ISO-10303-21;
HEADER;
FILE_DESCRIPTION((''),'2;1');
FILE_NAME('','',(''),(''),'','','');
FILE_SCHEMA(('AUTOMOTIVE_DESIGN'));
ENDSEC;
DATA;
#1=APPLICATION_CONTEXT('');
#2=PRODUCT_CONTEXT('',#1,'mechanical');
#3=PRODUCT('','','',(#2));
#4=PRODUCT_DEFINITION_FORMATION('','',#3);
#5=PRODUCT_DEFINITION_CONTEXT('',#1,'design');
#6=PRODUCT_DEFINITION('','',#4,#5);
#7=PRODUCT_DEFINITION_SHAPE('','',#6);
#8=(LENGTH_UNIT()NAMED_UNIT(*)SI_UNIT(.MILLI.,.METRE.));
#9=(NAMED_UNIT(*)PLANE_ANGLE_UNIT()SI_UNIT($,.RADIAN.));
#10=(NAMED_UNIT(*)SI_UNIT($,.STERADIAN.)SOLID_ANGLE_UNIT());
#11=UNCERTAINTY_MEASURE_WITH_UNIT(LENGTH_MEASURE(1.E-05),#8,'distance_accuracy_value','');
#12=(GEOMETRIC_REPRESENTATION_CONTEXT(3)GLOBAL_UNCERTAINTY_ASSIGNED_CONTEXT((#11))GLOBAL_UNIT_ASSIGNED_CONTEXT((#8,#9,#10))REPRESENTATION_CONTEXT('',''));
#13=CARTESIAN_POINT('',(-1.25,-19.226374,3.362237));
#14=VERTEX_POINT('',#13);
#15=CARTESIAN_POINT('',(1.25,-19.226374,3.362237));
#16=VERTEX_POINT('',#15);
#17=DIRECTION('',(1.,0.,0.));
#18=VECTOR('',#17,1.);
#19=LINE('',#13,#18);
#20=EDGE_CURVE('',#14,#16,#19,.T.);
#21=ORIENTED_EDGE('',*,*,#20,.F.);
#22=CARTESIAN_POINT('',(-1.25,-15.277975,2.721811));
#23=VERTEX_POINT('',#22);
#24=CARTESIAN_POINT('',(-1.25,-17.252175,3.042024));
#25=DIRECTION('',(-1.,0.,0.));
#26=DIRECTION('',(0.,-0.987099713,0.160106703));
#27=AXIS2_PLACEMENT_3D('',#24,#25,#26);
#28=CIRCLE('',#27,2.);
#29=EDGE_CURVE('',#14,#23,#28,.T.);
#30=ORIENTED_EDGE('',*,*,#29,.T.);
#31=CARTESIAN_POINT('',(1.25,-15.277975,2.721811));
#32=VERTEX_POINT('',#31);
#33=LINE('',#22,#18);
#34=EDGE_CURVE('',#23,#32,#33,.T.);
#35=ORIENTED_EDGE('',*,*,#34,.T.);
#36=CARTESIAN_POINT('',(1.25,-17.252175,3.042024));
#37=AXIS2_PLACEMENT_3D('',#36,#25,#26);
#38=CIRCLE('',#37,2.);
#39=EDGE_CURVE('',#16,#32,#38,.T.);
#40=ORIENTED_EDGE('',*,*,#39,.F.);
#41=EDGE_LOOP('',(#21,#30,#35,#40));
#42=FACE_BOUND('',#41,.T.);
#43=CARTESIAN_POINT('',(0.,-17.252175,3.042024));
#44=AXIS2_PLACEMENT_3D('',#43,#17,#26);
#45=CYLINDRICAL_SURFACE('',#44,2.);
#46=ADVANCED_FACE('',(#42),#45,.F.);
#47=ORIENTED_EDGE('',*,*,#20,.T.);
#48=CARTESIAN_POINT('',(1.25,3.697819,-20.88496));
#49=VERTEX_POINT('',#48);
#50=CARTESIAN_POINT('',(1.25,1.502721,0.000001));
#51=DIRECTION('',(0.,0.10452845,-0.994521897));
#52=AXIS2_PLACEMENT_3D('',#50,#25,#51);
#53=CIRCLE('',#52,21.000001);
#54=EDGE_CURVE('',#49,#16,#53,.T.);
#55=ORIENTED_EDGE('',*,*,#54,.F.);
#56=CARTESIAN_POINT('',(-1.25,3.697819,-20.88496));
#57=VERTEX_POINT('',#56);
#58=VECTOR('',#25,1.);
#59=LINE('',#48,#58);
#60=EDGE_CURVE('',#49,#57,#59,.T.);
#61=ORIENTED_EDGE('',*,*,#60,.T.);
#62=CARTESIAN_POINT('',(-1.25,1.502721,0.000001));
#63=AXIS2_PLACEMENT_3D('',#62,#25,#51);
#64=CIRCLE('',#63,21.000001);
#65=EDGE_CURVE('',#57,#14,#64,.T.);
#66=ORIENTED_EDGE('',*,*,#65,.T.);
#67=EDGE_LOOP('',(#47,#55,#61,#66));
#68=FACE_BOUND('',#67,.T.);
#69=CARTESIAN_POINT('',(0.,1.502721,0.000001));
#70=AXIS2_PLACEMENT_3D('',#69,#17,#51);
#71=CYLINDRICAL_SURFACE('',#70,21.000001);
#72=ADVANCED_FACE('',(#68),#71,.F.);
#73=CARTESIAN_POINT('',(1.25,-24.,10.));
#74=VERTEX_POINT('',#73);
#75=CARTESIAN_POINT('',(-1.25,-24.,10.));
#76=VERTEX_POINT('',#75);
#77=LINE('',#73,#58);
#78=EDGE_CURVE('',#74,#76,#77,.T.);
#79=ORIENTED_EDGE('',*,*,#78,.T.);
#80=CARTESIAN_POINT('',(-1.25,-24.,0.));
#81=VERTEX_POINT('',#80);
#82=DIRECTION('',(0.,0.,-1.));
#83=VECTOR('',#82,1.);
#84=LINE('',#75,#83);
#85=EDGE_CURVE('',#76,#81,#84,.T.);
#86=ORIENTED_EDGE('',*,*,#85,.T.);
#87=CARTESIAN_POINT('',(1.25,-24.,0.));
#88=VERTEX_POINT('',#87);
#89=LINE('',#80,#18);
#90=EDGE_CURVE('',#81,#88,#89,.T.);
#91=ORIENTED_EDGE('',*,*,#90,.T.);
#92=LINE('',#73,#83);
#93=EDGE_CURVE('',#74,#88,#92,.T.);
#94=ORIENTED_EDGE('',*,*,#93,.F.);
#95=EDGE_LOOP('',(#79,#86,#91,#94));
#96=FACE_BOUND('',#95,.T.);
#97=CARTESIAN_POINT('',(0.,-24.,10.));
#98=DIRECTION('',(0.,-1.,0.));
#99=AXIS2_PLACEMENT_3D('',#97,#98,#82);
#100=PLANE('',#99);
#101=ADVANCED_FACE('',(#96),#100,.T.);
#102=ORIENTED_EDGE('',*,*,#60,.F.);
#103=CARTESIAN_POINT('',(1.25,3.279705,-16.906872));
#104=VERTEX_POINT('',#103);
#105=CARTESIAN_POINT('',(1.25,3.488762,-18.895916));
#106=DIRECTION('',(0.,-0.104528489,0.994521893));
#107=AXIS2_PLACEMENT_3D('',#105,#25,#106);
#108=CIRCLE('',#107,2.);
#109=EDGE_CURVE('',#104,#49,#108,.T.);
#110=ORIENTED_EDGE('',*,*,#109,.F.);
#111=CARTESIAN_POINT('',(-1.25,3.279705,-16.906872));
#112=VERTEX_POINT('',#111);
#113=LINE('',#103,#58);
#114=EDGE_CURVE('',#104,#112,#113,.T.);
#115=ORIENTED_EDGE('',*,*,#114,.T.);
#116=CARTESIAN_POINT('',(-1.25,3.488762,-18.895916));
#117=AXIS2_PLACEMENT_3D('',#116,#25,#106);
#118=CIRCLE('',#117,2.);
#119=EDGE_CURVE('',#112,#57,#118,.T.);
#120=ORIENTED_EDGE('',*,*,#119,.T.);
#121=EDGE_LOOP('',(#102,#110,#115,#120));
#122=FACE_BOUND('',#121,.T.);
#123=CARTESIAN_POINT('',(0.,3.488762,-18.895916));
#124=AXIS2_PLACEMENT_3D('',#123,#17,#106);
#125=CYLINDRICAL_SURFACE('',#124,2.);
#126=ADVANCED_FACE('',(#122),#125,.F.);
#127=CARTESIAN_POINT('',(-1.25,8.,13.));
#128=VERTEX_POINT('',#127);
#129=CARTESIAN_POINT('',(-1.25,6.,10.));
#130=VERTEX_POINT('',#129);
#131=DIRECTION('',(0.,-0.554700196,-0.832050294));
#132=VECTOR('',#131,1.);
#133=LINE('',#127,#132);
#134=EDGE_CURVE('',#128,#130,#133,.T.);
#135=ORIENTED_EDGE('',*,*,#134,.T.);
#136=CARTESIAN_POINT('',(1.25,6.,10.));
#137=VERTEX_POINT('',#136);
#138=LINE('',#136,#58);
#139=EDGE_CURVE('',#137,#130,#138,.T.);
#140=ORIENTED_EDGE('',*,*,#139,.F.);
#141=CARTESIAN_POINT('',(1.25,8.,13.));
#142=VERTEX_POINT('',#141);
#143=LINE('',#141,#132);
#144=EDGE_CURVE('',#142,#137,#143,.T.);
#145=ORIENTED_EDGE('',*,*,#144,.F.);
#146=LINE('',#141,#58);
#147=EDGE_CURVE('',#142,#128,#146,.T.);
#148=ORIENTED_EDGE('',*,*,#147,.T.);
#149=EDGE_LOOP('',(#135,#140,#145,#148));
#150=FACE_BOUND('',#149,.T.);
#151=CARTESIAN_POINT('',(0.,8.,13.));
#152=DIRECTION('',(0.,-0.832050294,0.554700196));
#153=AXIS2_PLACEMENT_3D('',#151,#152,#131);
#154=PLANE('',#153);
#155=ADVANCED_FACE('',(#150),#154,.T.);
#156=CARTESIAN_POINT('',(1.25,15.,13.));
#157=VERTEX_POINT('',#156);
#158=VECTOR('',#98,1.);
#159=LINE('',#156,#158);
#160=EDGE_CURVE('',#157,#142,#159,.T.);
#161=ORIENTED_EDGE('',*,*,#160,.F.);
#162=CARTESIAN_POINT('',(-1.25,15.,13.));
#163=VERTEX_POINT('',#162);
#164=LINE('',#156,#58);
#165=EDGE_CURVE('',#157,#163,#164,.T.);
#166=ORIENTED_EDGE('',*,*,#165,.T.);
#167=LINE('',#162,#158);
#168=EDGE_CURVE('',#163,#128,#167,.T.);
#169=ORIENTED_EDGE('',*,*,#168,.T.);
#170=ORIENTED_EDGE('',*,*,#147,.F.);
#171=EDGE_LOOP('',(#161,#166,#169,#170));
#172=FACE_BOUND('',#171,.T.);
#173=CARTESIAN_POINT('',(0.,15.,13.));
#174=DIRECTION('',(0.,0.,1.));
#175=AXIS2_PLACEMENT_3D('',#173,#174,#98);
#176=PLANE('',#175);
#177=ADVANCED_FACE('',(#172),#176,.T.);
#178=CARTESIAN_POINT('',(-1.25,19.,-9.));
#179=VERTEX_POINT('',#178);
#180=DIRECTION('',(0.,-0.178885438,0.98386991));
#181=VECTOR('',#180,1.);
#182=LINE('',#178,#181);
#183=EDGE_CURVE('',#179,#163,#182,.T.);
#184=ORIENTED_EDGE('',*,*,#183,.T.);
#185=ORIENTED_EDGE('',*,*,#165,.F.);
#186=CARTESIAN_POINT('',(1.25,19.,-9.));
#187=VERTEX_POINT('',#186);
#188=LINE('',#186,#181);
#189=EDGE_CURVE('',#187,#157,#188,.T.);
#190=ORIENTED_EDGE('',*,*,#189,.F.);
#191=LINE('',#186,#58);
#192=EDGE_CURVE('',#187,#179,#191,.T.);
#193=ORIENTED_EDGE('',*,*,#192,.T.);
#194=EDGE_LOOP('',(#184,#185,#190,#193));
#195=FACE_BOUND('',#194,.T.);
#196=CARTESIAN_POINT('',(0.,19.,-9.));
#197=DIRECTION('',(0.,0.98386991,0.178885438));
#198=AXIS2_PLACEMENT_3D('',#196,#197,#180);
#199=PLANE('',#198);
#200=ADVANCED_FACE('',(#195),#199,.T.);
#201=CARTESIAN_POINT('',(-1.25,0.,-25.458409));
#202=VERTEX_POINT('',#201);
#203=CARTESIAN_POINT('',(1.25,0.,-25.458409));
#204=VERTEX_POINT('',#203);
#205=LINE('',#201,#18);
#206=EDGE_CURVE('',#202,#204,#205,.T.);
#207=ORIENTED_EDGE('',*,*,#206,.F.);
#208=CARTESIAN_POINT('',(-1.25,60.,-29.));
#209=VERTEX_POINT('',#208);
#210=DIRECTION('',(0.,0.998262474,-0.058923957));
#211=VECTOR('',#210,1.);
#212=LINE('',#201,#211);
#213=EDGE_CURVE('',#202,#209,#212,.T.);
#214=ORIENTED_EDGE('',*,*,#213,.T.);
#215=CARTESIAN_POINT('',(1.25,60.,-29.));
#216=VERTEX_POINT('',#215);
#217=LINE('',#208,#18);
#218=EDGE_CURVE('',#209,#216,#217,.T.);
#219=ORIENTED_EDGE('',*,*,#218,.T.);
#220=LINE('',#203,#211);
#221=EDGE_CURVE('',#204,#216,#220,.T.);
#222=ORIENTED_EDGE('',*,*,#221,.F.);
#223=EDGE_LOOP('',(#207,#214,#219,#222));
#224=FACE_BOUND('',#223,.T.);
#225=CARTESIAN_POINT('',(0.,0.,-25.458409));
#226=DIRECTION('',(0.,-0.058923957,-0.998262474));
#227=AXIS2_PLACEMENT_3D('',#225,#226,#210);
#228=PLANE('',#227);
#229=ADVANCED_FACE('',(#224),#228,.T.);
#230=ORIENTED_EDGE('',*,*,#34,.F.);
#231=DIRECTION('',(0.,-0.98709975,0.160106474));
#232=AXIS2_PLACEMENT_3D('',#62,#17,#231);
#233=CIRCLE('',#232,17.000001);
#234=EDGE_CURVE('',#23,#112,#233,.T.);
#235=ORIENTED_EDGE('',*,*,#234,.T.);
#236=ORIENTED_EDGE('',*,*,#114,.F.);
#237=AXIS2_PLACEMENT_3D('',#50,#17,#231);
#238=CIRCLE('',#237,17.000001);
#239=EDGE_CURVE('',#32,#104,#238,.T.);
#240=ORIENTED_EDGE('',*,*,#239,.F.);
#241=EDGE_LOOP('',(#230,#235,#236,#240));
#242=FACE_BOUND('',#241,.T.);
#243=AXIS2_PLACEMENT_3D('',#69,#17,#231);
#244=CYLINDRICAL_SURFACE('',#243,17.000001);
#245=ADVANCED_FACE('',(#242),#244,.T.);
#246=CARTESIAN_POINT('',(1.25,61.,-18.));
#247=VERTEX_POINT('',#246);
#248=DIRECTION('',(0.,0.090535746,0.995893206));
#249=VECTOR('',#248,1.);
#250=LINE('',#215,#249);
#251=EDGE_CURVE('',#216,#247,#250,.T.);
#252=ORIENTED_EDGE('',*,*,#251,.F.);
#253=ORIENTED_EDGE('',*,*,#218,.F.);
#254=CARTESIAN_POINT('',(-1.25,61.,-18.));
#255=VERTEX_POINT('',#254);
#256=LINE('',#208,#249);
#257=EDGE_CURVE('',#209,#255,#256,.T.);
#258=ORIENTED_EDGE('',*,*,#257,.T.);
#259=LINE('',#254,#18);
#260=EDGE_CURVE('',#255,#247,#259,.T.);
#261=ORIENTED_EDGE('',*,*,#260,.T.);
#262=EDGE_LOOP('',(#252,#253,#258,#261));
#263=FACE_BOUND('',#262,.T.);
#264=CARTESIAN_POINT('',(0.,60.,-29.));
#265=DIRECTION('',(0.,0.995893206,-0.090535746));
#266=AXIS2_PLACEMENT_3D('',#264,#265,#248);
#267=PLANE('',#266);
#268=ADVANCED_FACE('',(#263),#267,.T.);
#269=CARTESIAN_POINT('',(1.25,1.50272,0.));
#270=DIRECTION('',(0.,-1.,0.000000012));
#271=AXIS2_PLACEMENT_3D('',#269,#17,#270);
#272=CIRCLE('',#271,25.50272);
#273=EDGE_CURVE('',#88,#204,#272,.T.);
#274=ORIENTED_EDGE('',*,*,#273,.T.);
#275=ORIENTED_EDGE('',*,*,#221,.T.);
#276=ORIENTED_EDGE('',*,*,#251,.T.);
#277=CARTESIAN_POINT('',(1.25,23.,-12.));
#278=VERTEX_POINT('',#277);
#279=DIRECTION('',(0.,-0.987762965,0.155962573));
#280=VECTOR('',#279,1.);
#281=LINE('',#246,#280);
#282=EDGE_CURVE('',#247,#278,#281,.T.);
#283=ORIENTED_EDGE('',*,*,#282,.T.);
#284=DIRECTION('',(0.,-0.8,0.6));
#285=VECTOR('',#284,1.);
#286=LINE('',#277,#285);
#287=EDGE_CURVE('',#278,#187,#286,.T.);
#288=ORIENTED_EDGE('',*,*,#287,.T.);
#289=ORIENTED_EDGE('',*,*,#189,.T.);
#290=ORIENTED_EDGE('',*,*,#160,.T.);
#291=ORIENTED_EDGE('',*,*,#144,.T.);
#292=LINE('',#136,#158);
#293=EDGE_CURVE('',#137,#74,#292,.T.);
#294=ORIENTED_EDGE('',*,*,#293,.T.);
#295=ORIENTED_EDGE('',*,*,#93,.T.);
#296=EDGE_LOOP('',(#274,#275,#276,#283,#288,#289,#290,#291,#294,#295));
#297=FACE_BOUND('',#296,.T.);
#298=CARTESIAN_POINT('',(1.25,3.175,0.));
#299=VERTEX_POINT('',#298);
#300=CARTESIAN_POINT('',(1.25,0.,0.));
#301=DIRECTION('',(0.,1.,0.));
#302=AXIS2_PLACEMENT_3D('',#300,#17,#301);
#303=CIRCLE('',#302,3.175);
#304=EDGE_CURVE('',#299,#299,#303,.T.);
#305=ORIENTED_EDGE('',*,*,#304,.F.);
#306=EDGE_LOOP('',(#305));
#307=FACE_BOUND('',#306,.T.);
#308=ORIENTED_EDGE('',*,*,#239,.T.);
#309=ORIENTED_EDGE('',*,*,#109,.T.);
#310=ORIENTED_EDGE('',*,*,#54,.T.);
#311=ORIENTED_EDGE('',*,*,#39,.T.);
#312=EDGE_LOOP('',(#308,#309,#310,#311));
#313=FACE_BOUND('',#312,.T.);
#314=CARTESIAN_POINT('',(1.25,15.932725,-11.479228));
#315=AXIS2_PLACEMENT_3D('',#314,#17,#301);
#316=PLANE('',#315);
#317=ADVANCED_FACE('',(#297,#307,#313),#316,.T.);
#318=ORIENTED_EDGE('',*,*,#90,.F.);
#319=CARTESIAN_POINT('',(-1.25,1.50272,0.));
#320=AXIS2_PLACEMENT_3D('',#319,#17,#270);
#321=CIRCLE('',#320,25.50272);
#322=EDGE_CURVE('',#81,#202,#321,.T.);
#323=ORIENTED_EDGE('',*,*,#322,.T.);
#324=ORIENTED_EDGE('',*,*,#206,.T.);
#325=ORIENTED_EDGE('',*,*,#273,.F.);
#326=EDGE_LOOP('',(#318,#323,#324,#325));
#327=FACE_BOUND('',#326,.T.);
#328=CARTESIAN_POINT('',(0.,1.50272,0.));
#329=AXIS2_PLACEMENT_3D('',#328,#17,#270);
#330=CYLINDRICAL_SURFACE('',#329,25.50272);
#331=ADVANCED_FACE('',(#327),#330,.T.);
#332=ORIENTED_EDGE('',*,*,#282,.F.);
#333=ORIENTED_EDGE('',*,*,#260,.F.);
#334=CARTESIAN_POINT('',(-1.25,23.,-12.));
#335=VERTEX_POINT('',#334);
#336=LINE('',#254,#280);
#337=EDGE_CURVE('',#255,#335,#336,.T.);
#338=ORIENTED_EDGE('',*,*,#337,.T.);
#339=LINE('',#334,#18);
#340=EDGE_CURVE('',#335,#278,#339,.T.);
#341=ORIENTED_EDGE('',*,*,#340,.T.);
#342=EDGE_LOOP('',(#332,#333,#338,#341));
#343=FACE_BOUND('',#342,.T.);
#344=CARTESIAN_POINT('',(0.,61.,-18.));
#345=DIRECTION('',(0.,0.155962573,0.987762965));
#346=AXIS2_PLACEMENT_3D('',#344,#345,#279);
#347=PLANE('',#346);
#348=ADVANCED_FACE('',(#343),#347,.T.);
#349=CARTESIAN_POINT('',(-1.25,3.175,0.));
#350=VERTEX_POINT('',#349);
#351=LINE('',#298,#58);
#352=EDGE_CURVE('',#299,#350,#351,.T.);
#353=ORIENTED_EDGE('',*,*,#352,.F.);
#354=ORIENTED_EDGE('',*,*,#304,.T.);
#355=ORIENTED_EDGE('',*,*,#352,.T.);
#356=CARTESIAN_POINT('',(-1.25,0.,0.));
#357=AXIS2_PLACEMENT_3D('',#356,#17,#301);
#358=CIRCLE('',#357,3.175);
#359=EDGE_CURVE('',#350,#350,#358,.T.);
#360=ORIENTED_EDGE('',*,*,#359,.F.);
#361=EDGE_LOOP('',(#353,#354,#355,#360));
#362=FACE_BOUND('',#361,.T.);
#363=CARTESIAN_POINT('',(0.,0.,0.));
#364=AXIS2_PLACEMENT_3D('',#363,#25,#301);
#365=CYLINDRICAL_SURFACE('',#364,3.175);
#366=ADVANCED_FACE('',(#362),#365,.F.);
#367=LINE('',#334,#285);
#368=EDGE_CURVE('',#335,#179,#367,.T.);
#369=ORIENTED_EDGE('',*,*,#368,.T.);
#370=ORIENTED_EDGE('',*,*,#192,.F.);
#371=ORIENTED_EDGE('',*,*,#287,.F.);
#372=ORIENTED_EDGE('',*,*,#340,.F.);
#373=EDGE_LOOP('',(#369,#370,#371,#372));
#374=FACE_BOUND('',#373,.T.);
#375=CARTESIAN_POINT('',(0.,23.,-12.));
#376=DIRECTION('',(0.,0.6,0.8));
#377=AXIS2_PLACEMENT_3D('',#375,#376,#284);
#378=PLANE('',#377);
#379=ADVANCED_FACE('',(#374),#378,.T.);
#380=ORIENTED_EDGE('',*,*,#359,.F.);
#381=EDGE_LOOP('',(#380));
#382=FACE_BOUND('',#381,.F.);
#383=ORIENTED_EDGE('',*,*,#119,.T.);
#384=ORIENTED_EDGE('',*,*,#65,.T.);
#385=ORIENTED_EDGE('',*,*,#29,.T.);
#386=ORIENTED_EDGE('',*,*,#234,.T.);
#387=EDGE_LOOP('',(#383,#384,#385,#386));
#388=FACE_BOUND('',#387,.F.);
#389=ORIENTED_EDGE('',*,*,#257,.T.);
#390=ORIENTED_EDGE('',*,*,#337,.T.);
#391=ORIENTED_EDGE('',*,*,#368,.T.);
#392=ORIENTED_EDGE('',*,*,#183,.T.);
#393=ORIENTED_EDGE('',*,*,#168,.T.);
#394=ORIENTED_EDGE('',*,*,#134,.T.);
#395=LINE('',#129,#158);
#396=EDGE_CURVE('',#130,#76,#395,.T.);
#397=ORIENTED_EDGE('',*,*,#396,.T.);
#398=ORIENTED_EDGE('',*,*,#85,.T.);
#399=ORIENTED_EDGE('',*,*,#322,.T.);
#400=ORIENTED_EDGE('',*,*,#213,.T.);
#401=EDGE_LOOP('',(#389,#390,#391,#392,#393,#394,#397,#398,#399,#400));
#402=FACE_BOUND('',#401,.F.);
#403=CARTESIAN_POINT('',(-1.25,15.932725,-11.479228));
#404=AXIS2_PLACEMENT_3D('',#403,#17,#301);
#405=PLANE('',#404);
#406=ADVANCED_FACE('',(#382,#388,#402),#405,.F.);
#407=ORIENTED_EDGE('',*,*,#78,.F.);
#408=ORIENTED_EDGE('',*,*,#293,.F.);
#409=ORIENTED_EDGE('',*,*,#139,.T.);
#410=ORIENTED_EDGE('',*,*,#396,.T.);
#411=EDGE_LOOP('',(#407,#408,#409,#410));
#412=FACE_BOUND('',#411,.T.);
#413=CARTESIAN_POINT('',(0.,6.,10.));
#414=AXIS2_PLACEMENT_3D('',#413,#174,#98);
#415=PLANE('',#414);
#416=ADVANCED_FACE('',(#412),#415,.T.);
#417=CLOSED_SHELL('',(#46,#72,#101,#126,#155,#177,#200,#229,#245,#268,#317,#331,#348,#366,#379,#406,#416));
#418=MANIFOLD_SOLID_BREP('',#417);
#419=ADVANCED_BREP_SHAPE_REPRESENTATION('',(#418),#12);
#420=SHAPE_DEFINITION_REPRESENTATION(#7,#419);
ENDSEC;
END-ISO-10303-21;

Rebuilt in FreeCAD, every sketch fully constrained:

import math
import FreeCAD as App
import Part
import Sketcher
Q = App.Units.Quantity

doc = App.newDocument("Part")
body = doc.addObject("PartDesign::Body", "Body")

# Sketch on YZ plane
sketch1 = body.newObject("Sketcher::SketchObject", "Sketch")
sketch1.AttachmentSupport = (doc.getObject("YZ_Plane"), [""])
sketch1.MapMode = "FlatFace"
sketch1.addGeometry(Part.LineSegment(App.Vector(-24, 10, 0), App.Vector(-24, 0, 0)), False)
sketch1.addGeometry(Part.ArcOfCircle(Part.Circle(App.Vector(1.50272, 0, 0), App.Vector(0, 0, 1), 25.50272), math.radians(179.999999), math.radians(266.621951)), False)
sketch1.addGeometry(Part.LineSegment(App.Vector(0, -25.458409, 0), App.Vector(60, -29, 0)), False)
sketch1.addGeometry(Part.LineSegment(App.Vector(60, -29, 0), App.Vector(61, -18, 0)), False)
sketch1.addGeometry(Part.LineSegment(App.Vector(61, -18, 0), App.Vector(23, -12, 0)), False)
sketch1.addGeometry(Part.LineSegment(App.Vector(23, -12, 0), App.Vector(19, -9, 0)), False)
sketch1.addGeometry(Part.LineSegment(App.Vector(19, -9, 0), App.Vector(15, 13, 0)), False)
sketch1.addGeometry(Part.LineSegment(App.Vector(15, 13, 0), App.Vector(8, 13, 0)), False)
sketch1.addGeometry(Part.LineSegment(App.Vector(8, 13, 0), App.Vector(6, 10, 0)), False)
sketch1.addGeometry(Part.LineSegment(App.Vector(6, 10, 0), App.Vector(-24, 10, 0)), False)
sketch1.addGeometry(Part.ArcOfCircle(Part.Circle(App.Vector(1.502721, 0.000001, 0), App.Vector(0, 0, 1), 21.000001), math.radians(170.786923), math.radians(275.999999)), False)
sketch1.addGeometry(Part.ArcOfCircle(Part.Circle(App.Vector(-17.252175, 3.042024, 0), App.Vector(0, 0, 1), 2), math.radians(-9.213066), math.radians(170.78691)), False)
sketch1.addGeometry(Part.ArcOfCircle(Part.Circle(App.Vector(1.502721, 0.000001, 0), App.Vector(0, 0, 1), 17.000001), math.radians(170.786924), math.radians(275.999999)), False)
sketch1.addGeometry(Part.ArcOfCircle(Part.Circle(App.Vector(3.488762, -18.895916, 0), App.Vector(0, 0, 1), 2), math.radians(-83.999999), math.radians(96.000001)), False)
sketch1.addGeometry(Part.Circle(App.Vector(0, 0, 0), App.Vector(0, 0, 1), 3.175), False)
sketch1.addConstraint(Sketcher.Constraint("Coincident", 0, 2, 1, 1))
sketch1.addConstraint(Sketcher.Constraint("Coincident", 1, 2, 2, 1))
sketch1.addConstraint(Sketcher.Constraint("Coincident", 2, 2, 3, 1))
sketch1.addConstraint(Sketcher.Constraint("Coincident", 3, 2, 4, 1))
sketch1.addConstraint(Sketcher.Constraint("Coincident", 4, 2, 5, 1))
sketch1.addConstraint(Sketcher.Constraint("Coincident", 5, 2, 6, 1))
sketch1.addConstraint(Sketcher.Constraint("Coincident", 6, 2, 7, 1))
sketch1.addConstraint(Sketcher.Constraint("Coincident", 7, 2, 8, 1))
sketch1.addConstraint(Sketcher.Constraint("Coincident", 8, 2, 9, 1))
sketch1.addConstraint(Sketcher.Constraint("Coincident", 9, 2, 0, 1))
sketch1.addConstraint(Sketcher.Constraint("Coincident", 10, 1, 11, 2))
sketch1.addConstraint(Sketcher.Constraint("Coincident", 11, 1, 12, 1))
sketch1.addConstraint(Sketcher.Constraint("Coincident", 12, 2, 13, 2))
sketch1.addConstraint(Sketcher.Constraint("Coincident", 13, 1, 10, 2))
sketch1.addConstraint(Sketcher.Constraint("Vertical", 0))
sketch1.addConstraint(Sketcher.Constraint("Horizontal", 7))
sketch1.addConstraint(Sketcher.Constraint("Horizontal", 9))
sketch1.addConstraint(Sketcher.Constraint("Coincident", 14, 3, -1, 1))
sketch1.addConstraint(Sketcher.Constraint("Coincident", 10, 3, 1, 3))
sketch1.addConstraint(Sketcher.Constraint("Coincident", 12, 3, 1, 3))
sketch1.addConstraint(Sketcher.Constraint("PointOnObject", 1, 3, -1))
sketch1.addConstraint(Sketcher.Constraint("PointOnObject", 0, 2, -1))
sketch1.addConstraint(Sketcher.Constraint("PointOnObject", 1, 2, -2))
sketch1.addConstraint(Sketcher.Constraint("Radius", 10, Q("21.000001 mm")))
sketch1.addConstraint(Sketcher.Constraint("Radius", 11, Q("2 mm")))
sketch1.addConstraint(Sketcher.Constraint("Diameter", 14, Q("6.35 mm")))
sketch1.addConstraint(Sketcher.Constraint("DistanceX", 7, 2, 7, 1, Q("7 mm")))
sketch1.addConstraint(Sketcher.Constraint("DistanceX", 9, 2, 9, 1, Q("30 mm")))
sketch1.addConstraint(Sketcher.Constraint("DistanceY", 0, 2, 0, 1, Q("10 mm")))
sketch1.addConstraint(Sketcher.Constraint("Distance", 5, Q("5 mm")))
sketch1.addConstraint(Sketcher.Constraint("DistanceX", 0, 2, -1, 1, Q("24 mm")))
sketch1.addConstraint(Sketcher.Constraint("DistanceX", -1, 1, 2, 2, Q("60 mm")))
sketch1.addConstraint(Sketcher.Constraint("DistanceY", 2, 2, -1, 1, Q("29 mm")))
sketch1.addConstraint(Sketcher.Constraint("DistanceX", -1, 1, 3, 2, Q("61 mm")))
sketch1.addConstraint(Sketcher.Constraint("DistanceY", 3, 2, -1, 1, Q("18 mm")))
sketch1.addConstraint(Sketcher.Constraint("DistanceX", -1, 1, 4, 2, Q("23 mm")))
sketch1.addConstraint(Sketcher.Constraint("DistanceY", 4, 2, -1, 1, Q("12 mm")))
sketch1.addConstraint(Sketcher.Constraint("DistanceX", -1, 1, 5, 2, Q("19 mm")))
sketch1.addConstraint(Sketcher.Constraint("DistanceX", -1, 1, 6, 2, Q("15 mm")))
sketch1.addConstraint(Sketcher.Constraint("DistanceY", -1, 1, 6, 2, Q("13 mm")))
sketch1.addConstraint(Sketcher.Constraint("Radius", 1, Q("25.50272 mm")))
sketch1.addConstraint(Sketcher.Constraint("DistanceX", 10, 1, 11, 3, Q("1.974199 mm")))
sketch1.addConstraint(Sketcher.Constraint("DistanceX", 11, 3, 11, 1, Q("1.9742 mm")))
sketch1.addConstraint(Sketcher.Constraint("DistanceX", 1, 3, 13, 1, Q("2.195099 mm")))
sketch1.addConstraint(Sketcher.Constraint("DistanceX", -1, 1, 13, 3, Q("3.488762 mm")))
sketch1.addConstraint(Sketcher.Constraint("DistanceY", -1, 1, 11, 1, Q("2.721811 mm")))
sketch1.addConstraint(Sketcher.Constraint("DistanceY", 12, 2, 1, 3, Q("16.906872 mm")))
pad1 = body.newObject("PartDesign::Pad", "Pad")
pad1.Profile = sketch1
pad1.Length = 2.5
pad1.Midplane = True

doc.recompute()
